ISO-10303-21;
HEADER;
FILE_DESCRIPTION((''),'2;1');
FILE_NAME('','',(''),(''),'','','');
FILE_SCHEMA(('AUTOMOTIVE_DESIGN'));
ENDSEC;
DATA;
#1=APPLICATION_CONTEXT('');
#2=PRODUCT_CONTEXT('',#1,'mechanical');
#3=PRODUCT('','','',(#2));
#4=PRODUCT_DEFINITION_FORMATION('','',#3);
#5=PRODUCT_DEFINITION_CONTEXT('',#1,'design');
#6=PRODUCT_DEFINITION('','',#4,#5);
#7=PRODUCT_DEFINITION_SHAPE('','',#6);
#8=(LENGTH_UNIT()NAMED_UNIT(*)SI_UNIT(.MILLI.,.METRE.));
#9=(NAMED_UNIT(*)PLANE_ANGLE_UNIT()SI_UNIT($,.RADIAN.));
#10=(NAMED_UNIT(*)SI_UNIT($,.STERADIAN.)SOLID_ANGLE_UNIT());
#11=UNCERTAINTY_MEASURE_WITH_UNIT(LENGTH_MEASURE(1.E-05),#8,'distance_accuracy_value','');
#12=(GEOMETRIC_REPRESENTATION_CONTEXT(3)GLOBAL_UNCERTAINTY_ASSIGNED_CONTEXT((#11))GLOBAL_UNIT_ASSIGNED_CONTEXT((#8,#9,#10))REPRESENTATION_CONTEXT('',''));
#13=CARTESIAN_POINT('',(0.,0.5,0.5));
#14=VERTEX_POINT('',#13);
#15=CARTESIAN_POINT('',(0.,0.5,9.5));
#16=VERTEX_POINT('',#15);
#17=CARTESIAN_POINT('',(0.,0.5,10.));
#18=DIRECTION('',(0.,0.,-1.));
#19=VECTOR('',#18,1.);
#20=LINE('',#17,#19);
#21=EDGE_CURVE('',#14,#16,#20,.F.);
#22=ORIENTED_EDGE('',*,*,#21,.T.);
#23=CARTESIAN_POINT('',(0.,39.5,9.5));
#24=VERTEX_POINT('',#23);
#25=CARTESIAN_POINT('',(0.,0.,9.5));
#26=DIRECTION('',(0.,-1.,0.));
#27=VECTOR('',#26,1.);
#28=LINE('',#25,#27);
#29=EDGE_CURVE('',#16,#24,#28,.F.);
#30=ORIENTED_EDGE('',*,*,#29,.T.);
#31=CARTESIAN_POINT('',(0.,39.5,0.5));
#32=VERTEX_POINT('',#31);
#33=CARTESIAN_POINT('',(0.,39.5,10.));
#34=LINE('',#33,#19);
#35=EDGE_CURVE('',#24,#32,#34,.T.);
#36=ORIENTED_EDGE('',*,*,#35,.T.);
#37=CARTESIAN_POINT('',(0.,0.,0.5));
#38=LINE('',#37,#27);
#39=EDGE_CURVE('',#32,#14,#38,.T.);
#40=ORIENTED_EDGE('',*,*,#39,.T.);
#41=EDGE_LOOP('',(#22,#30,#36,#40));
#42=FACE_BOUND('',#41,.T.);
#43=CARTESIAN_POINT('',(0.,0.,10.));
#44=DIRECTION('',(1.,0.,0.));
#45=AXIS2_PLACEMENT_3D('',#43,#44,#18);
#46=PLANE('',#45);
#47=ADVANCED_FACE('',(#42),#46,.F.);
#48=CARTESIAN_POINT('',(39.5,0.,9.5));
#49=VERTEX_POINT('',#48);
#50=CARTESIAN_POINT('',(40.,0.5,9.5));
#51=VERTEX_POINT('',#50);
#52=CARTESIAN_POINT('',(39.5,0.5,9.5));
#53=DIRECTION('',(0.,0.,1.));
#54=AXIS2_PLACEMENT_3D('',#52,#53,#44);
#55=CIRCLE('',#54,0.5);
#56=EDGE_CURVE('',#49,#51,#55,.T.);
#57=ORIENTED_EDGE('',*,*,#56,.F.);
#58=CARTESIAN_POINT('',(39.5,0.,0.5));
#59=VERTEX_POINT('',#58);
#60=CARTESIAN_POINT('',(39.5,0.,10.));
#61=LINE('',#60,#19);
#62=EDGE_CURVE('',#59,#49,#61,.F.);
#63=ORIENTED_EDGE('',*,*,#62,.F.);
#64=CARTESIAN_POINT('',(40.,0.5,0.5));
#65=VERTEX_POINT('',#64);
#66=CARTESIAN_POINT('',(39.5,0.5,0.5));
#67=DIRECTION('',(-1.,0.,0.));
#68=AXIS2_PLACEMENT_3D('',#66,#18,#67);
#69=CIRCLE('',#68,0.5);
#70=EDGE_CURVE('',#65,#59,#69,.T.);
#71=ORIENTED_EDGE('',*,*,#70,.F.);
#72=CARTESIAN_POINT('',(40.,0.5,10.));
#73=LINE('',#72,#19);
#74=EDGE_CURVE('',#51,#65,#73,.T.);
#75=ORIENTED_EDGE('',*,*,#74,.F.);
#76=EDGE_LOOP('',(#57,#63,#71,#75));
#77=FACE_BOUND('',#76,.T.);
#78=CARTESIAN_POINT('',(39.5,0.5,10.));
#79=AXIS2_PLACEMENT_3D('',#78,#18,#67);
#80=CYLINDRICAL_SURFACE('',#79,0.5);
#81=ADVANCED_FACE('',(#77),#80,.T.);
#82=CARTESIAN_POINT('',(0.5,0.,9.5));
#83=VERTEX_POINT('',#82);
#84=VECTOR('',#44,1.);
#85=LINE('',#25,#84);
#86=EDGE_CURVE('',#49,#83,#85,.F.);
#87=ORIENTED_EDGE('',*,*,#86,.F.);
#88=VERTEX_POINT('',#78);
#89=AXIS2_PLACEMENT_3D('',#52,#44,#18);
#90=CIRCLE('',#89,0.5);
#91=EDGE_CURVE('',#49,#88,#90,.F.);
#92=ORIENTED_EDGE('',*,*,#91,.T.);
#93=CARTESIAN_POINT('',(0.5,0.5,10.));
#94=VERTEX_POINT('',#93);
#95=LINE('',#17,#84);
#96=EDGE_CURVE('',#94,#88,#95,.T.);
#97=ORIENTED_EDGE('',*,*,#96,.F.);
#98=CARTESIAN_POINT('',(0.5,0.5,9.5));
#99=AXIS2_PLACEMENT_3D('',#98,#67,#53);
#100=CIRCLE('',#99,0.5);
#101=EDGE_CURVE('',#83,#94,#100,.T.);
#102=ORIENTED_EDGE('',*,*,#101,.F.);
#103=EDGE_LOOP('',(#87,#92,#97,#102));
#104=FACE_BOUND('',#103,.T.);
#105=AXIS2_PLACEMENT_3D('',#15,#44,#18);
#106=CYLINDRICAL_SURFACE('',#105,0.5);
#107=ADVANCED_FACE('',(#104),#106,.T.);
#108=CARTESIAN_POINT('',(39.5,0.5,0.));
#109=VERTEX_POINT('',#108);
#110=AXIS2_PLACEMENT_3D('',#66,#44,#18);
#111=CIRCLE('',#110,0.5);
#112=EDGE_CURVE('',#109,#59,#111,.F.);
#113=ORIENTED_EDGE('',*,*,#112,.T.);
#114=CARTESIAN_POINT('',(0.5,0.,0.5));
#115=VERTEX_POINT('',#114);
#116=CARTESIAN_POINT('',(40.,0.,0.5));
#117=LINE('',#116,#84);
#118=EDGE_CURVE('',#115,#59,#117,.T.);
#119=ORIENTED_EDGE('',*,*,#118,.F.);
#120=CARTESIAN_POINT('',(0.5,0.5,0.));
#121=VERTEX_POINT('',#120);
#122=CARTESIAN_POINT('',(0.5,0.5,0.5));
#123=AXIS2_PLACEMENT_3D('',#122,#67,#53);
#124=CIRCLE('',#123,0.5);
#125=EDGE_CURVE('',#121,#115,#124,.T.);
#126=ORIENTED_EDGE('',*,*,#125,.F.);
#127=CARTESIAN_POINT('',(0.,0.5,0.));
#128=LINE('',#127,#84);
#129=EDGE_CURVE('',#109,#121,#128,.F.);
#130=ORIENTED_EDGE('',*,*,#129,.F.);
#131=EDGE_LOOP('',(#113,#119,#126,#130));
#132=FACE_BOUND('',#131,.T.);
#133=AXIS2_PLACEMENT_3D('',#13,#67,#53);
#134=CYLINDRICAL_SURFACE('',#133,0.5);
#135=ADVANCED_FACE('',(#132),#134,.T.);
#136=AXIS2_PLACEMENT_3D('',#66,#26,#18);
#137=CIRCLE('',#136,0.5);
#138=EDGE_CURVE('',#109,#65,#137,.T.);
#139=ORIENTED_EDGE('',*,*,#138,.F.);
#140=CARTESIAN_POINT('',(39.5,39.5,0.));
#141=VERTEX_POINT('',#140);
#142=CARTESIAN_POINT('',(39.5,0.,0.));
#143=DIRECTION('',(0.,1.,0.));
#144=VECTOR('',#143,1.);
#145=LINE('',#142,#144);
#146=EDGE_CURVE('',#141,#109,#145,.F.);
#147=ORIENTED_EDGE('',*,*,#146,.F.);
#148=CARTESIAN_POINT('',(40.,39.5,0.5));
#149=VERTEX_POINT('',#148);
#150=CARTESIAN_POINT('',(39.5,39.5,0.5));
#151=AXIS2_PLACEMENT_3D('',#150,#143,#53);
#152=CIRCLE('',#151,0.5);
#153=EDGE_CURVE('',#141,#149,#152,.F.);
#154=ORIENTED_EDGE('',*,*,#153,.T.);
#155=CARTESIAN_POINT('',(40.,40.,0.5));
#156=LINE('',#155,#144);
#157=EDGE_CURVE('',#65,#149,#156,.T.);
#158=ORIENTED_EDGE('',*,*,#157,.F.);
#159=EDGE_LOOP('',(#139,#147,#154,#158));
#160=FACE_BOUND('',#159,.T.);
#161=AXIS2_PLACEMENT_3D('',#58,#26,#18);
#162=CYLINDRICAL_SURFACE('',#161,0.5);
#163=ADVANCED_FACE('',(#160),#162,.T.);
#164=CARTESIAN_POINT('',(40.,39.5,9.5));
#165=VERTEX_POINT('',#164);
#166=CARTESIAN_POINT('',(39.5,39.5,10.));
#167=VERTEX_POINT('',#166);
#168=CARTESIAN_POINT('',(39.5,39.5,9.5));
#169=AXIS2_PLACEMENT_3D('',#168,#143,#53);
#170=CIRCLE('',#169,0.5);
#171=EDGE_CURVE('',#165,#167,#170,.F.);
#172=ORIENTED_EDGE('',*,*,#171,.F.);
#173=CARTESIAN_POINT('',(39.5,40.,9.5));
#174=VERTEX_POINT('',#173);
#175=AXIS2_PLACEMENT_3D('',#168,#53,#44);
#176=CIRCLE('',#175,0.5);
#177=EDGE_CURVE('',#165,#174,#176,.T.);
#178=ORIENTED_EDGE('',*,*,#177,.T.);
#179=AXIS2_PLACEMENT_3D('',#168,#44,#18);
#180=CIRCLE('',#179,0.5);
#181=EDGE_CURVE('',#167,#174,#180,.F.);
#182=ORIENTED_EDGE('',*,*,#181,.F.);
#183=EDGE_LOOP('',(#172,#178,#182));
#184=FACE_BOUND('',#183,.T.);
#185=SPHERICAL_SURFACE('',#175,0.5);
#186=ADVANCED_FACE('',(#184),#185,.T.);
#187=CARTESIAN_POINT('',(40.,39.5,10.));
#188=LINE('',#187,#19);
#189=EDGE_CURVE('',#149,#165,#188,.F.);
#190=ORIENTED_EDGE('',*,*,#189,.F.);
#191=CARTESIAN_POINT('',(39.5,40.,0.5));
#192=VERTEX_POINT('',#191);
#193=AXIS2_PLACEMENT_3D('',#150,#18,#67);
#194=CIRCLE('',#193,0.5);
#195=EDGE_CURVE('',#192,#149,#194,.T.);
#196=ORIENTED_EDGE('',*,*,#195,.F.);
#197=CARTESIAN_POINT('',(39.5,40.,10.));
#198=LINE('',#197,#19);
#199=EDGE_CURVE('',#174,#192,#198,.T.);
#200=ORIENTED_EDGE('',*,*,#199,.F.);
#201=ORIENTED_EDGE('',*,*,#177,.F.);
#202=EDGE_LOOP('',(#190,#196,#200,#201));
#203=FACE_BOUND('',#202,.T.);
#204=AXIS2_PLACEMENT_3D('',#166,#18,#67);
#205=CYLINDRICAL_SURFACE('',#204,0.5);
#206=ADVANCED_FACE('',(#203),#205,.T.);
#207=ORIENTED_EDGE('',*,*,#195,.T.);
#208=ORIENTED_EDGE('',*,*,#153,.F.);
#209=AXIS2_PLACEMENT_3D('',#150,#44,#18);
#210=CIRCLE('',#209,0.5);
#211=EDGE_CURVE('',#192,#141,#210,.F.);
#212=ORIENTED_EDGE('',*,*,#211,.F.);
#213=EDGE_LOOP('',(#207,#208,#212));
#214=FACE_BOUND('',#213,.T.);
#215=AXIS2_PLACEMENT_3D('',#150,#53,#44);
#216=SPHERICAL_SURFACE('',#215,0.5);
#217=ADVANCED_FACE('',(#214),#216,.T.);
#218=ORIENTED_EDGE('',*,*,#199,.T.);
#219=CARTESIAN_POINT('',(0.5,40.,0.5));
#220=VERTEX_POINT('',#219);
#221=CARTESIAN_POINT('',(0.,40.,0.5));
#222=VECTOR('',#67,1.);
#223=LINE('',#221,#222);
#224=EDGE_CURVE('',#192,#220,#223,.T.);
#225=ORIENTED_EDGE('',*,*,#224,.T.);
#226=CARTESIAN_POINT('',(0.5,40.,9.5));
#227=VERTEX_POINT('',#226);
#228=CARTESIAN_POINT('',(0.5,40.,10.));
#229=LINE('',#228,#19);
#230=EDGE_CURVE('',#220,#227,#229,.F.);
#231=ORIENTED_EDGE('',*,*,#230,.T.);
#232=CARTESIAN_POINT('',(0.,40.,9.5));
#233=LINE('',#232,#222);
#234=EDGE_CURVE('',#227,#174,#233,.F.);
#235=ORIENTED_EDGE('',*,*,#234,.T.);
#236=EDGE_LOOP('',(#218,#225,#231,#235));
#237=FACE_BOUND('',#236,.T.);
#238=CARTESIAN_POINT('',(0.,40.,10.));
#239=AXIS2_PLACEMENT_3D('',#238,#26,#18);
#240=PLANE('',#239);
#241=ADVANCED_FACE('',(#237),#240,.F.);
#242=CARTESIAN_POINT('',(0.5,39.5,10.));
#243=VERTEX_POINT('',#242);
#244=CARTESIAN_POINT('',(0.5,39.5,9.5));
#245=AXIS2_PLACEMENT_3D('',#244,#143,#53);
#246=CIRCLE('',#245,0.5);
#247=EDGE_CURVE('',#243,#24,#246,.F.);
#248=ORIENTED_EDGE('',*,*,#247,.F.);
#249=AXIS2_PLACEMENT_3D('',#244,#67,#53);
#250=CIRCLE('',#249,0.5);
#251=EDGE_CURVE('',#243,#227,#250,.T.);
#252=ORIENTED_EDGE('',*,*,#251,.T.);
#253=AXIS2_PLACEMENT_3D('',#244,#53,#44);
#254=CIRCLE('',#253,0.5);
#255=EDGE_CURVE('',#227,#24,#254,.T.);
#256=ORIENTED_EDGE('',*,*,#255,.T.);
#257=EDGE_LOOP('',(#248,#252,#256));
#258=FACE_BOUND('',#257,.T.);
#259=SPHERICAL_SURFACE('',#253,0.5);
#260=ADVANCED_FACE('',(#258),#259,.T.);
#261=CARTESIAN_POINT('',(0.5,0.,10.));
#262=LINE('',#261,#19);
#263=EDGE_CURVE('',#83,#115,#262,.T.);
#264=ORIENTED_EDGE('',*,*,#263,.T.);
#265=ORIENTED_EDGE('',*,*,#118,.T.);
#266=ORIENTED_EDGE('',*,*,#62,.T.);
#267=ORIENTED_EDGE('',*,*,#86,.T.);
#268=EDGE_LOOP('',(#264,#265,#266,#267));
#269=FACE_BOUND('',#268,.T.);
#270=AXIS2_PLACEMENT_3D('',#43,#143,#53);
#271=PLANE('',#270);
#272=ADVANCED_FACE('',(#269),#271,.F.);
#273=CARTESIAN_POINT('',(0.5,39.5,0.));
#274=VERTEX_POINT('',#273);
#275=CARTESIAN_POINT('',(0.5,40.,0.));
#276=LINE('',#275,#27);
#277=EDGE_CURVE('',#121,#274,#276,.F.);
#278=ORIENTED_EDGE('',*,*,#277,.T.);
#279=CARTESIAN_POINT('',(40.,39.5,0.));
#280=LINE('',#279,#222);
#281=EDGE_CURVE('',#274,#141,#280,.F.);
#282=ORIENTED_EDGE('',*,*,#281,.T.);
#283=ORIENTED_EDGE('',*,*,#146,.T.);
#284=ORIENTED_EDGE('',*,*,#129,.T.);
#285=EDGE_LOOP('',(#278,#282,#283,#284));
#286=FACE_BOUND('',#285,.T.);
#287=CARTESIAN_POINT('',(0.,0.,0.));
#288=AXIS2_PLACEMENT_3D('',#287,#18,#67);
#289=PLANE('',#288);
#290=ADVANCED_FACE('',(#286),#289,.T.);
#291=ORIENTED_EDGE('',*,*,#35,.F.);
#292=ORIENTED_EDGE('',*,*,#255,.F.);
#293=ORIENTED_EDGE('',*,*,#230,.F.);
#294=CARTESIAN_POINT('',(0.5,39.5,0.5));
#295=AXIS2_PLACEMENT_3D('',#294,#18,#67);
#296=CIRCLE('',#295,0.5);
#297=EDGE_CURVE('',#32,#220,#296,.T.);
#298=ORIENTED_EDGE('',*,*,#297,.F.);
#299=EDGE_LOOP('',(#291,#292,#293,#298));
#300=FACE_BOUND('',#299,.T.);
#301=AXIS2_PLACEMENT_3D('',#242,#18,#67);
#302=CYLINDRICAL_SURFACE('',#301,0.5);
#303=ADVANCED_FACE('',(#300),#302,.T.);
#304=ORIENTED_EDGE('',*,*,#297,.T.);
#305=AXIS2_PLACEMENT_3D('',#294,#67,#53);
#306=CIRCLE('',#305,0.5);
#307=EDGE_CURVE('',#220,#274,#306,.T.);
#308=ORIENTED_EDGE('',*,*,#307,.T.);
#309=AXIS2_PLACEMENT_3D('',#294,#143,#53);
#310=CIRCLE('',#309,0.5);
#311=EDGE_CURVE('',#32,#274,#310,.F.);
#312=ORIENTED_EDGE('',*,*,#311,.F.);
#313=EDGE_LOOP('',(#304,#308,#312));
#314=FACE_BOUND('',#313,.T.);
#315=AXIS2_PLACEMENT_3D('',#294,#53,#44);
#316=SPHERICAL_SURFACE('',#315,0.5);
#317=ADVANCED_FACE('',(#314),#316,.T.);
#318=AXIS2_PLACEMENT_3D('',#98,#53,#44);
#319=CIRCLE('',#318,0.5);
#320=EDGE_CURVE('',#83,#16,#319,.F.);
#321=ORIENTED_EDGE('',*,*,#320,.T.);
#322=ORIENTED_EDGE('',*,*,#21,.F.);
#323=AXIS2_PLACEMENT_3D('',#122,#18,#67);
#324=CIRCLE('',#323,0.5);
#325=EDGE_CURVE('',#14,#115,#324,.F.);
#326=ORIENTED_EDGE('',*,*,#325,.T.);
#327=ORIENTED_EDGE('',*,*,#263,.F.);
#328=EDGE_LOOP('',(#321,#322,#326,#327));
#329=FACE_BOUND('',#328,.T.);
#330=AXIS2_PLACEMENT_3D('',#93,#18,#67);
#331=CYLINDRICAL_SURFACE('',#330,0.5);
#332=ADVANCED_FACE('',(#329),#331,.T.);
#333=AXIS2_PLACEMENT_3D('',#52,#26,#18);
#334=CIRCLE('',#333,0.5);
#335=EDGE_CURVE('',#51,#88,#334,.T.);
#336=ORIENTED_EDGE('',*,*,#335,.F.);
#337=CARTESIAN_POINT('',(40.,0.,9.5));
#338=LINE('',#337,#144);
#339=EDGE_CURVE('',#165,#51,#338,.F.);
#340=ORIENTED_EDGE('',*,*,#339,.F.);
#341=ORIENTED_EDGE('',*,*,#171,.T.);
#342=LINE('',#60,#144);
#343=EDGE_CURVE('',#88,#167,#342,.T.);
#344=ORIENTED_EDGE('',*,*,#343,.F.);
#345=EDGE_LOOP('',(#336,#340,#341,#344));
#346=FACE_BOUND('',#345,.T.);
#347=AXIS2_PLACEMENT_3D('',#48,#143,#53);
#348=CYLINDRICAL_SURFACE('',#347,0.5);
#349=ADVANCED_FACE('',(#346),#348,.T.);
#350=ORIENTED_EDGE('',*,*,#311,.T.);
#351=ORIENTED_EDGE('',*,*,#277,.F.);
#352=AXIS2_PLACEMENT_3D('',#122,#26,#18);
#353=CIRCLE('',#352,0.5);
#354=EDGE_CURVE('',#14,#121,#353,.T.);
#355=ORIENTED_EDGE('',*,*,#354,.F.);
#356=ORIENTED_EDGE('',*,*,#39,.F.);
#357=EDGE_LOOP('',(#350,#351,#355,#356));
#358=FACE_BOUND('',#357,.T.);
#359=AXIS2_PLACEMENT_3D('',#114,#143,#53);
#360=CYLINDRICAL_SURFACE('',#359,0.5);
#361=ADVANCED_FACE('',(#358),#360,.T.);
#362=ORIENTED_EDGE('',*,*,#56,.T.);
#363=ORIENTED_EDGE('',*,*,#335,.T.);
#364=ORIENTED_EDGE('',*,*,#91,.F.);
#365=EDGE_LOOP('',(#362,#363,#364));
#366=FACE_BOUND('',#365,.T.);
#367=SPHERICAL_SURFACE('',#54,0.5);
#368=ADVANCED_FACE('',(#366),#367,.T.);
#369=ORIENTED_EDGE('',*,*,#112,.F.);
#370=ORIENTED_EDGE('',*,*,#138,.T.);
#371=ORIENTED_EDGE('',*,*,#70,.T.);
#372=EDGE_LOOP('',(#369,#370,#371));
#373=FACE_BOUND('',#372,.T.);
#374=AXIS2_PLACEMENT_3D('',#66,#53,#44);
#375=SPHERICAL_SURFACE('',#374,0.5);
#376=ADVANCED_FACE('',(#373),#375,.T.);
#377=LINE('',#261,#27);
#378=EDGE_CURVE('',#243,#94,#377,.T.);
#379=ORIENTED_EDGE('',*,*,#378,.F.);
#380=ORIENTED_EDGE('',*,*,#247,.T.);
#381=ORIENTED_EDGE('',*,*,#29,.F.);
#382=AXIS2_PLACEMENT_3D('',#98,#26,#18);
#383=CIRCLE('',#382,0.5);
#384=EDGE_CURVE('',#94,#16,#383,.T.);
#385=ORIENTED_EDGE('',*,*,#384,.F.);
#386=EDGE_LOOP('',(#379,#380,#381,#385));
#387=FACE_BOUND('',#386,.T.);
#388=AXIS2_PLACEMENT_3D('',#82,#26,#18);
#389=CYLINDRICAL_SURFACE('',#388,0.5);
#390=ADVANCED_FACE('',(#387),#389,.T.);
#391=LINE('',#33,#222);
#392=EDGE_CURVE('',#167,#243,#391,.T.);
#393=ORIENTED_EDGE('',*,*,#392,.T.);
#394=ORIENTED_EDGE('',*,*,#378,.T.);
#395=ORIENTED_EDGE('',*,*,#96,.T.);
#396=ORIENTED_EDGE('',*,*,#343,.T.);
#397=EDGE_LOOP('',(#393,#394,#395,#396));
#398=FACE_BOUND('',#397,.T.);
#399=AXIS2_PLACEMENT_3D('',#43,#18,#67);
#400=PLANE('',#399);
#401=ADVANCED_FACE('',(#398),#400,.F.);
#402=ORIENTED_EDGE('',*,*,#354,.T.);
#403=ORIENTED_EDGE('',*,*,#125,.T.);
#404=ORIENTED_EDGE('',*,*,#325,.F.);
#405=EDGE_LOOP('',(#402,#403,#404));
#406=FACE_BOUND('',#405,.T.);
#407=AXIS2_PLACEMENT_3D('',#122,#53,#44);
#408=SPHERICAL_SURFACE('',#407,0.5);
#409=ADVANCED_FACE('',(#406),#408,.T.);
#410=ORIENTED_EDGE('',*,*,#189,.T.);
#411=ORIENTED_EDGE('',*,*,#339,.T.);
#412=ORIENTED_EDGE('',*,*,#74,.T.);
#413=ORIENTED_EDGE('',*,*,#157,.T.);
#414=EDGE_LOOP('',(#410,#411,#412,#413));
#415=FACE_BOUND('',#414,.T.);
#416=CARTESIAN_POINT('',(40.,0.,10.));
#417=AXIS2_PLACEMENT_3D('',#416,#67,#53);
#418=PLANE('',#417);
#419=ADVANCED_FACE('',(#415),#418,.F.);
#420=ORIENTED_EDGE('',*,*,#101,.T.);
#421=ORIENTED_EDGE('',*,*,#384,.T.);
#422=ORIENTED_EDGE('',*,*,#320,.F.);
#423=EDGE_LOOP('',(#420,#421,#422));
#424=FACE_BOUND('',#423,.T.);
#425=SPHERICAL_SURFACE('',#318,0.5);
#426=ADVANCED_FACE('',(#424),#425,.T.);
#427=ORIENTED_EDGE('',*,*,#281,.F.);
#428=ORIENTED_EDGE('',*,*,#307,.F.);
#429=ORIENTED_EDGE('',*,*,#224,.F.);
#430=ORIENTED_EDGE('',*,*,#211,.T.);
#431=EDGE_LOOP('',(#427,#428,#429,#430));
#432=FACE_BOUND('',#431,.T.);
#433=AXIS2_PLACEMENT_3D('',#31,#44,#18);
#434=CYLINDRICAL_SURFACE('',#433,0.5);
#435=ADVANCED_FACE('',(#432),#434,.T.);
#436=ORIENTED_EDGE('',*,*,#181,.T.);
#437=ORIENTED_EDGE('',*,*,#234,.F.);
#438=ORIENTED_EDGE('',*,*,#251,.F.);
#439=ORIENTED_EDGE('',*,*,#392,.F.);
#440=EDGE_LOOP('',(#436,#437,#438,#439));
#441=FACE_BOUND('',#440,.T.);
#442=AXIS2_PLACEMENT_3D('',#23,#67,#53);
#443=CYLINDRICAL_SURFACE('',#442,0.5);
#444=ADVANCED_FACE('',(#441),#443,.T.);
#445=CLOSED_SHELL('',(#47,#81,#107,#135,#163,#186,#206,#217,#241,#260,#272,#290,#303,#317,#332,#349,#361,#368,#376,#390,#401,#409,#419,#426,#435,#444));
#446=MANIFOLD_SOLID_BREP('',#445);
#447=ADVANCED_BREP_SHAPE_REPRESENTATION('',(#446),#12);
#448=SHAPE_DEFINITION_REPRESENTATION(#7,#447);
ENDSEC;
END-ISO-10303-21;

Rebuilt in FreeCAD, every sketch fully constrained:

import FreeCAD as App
import Part
import Sketcher
Q = App.Units.Quantity


def add_polygon(sketch, points):
    """Adds a closed chain of lines whose ends are joined by coincident constraints."""
    first, n = sketch.GeometryCount, len(points)
    for a, b in zip(points, points[1:] + points[:1]):
        sketch.addGeometry(Part.LineSegment(App.Vector(*a, 0), App.Vector(*b, 0)), False)
    for i in range(n):
        sketch.addConstraint(Sketcher.Constraint("Coincident", first + i, 2, first + (i + 1) % n, 1))

doc = App.newDocument("Part")
body = doc.addObject("PartDesign::Body", "Body")

# Sketch on XY plane
sketch1 = body.newObject("Sketcher::SketchObject", "Sketch")
sketch1.AttachmentSupport = (doc.getObject("XY_Plane"), [""])
sketch1.MapMode = "FlatFace"
add_polygon(sketch1, [(0, 40), (0, 0), (40, 0), (40, 40)])  # lines 0-3
sketch1.addConstraint(Sketcher.Constraint("Vertical", 0))
sketch1.addConstraint(Sketcher.Constraint("Horizontal", 1))
sketch1.addConstraint(Sketcher.Constraint("Vertical", 2))
sketch1.addConstraint(Sketcher.Constraint("Horizontal", 3))
sketch1.addConstraint(Sketcher.Constraint("Coincident", 0, 2, -1, 1))
sketch1.addConstraint(Sketcher.Constraint("Equal", 3, 0))
sketch1.addConstraint(Sketcher.Constraint("DistanceX", 1, 1, 1, 2, Q("40 mm")))
pad1 = body.newObject("PartDesign::Pad", "Pad")
pad1.Profile = sketch1
pad1.Length = 10
doc.recompute()

fillet = body.newObject("PartDesign::Fillet", "Fillet")
fillet.Base = (pad1, ["Edge1"])
fillet.UseAllEdges = True
fillet.Radius = 0.5

doc.recompute()
